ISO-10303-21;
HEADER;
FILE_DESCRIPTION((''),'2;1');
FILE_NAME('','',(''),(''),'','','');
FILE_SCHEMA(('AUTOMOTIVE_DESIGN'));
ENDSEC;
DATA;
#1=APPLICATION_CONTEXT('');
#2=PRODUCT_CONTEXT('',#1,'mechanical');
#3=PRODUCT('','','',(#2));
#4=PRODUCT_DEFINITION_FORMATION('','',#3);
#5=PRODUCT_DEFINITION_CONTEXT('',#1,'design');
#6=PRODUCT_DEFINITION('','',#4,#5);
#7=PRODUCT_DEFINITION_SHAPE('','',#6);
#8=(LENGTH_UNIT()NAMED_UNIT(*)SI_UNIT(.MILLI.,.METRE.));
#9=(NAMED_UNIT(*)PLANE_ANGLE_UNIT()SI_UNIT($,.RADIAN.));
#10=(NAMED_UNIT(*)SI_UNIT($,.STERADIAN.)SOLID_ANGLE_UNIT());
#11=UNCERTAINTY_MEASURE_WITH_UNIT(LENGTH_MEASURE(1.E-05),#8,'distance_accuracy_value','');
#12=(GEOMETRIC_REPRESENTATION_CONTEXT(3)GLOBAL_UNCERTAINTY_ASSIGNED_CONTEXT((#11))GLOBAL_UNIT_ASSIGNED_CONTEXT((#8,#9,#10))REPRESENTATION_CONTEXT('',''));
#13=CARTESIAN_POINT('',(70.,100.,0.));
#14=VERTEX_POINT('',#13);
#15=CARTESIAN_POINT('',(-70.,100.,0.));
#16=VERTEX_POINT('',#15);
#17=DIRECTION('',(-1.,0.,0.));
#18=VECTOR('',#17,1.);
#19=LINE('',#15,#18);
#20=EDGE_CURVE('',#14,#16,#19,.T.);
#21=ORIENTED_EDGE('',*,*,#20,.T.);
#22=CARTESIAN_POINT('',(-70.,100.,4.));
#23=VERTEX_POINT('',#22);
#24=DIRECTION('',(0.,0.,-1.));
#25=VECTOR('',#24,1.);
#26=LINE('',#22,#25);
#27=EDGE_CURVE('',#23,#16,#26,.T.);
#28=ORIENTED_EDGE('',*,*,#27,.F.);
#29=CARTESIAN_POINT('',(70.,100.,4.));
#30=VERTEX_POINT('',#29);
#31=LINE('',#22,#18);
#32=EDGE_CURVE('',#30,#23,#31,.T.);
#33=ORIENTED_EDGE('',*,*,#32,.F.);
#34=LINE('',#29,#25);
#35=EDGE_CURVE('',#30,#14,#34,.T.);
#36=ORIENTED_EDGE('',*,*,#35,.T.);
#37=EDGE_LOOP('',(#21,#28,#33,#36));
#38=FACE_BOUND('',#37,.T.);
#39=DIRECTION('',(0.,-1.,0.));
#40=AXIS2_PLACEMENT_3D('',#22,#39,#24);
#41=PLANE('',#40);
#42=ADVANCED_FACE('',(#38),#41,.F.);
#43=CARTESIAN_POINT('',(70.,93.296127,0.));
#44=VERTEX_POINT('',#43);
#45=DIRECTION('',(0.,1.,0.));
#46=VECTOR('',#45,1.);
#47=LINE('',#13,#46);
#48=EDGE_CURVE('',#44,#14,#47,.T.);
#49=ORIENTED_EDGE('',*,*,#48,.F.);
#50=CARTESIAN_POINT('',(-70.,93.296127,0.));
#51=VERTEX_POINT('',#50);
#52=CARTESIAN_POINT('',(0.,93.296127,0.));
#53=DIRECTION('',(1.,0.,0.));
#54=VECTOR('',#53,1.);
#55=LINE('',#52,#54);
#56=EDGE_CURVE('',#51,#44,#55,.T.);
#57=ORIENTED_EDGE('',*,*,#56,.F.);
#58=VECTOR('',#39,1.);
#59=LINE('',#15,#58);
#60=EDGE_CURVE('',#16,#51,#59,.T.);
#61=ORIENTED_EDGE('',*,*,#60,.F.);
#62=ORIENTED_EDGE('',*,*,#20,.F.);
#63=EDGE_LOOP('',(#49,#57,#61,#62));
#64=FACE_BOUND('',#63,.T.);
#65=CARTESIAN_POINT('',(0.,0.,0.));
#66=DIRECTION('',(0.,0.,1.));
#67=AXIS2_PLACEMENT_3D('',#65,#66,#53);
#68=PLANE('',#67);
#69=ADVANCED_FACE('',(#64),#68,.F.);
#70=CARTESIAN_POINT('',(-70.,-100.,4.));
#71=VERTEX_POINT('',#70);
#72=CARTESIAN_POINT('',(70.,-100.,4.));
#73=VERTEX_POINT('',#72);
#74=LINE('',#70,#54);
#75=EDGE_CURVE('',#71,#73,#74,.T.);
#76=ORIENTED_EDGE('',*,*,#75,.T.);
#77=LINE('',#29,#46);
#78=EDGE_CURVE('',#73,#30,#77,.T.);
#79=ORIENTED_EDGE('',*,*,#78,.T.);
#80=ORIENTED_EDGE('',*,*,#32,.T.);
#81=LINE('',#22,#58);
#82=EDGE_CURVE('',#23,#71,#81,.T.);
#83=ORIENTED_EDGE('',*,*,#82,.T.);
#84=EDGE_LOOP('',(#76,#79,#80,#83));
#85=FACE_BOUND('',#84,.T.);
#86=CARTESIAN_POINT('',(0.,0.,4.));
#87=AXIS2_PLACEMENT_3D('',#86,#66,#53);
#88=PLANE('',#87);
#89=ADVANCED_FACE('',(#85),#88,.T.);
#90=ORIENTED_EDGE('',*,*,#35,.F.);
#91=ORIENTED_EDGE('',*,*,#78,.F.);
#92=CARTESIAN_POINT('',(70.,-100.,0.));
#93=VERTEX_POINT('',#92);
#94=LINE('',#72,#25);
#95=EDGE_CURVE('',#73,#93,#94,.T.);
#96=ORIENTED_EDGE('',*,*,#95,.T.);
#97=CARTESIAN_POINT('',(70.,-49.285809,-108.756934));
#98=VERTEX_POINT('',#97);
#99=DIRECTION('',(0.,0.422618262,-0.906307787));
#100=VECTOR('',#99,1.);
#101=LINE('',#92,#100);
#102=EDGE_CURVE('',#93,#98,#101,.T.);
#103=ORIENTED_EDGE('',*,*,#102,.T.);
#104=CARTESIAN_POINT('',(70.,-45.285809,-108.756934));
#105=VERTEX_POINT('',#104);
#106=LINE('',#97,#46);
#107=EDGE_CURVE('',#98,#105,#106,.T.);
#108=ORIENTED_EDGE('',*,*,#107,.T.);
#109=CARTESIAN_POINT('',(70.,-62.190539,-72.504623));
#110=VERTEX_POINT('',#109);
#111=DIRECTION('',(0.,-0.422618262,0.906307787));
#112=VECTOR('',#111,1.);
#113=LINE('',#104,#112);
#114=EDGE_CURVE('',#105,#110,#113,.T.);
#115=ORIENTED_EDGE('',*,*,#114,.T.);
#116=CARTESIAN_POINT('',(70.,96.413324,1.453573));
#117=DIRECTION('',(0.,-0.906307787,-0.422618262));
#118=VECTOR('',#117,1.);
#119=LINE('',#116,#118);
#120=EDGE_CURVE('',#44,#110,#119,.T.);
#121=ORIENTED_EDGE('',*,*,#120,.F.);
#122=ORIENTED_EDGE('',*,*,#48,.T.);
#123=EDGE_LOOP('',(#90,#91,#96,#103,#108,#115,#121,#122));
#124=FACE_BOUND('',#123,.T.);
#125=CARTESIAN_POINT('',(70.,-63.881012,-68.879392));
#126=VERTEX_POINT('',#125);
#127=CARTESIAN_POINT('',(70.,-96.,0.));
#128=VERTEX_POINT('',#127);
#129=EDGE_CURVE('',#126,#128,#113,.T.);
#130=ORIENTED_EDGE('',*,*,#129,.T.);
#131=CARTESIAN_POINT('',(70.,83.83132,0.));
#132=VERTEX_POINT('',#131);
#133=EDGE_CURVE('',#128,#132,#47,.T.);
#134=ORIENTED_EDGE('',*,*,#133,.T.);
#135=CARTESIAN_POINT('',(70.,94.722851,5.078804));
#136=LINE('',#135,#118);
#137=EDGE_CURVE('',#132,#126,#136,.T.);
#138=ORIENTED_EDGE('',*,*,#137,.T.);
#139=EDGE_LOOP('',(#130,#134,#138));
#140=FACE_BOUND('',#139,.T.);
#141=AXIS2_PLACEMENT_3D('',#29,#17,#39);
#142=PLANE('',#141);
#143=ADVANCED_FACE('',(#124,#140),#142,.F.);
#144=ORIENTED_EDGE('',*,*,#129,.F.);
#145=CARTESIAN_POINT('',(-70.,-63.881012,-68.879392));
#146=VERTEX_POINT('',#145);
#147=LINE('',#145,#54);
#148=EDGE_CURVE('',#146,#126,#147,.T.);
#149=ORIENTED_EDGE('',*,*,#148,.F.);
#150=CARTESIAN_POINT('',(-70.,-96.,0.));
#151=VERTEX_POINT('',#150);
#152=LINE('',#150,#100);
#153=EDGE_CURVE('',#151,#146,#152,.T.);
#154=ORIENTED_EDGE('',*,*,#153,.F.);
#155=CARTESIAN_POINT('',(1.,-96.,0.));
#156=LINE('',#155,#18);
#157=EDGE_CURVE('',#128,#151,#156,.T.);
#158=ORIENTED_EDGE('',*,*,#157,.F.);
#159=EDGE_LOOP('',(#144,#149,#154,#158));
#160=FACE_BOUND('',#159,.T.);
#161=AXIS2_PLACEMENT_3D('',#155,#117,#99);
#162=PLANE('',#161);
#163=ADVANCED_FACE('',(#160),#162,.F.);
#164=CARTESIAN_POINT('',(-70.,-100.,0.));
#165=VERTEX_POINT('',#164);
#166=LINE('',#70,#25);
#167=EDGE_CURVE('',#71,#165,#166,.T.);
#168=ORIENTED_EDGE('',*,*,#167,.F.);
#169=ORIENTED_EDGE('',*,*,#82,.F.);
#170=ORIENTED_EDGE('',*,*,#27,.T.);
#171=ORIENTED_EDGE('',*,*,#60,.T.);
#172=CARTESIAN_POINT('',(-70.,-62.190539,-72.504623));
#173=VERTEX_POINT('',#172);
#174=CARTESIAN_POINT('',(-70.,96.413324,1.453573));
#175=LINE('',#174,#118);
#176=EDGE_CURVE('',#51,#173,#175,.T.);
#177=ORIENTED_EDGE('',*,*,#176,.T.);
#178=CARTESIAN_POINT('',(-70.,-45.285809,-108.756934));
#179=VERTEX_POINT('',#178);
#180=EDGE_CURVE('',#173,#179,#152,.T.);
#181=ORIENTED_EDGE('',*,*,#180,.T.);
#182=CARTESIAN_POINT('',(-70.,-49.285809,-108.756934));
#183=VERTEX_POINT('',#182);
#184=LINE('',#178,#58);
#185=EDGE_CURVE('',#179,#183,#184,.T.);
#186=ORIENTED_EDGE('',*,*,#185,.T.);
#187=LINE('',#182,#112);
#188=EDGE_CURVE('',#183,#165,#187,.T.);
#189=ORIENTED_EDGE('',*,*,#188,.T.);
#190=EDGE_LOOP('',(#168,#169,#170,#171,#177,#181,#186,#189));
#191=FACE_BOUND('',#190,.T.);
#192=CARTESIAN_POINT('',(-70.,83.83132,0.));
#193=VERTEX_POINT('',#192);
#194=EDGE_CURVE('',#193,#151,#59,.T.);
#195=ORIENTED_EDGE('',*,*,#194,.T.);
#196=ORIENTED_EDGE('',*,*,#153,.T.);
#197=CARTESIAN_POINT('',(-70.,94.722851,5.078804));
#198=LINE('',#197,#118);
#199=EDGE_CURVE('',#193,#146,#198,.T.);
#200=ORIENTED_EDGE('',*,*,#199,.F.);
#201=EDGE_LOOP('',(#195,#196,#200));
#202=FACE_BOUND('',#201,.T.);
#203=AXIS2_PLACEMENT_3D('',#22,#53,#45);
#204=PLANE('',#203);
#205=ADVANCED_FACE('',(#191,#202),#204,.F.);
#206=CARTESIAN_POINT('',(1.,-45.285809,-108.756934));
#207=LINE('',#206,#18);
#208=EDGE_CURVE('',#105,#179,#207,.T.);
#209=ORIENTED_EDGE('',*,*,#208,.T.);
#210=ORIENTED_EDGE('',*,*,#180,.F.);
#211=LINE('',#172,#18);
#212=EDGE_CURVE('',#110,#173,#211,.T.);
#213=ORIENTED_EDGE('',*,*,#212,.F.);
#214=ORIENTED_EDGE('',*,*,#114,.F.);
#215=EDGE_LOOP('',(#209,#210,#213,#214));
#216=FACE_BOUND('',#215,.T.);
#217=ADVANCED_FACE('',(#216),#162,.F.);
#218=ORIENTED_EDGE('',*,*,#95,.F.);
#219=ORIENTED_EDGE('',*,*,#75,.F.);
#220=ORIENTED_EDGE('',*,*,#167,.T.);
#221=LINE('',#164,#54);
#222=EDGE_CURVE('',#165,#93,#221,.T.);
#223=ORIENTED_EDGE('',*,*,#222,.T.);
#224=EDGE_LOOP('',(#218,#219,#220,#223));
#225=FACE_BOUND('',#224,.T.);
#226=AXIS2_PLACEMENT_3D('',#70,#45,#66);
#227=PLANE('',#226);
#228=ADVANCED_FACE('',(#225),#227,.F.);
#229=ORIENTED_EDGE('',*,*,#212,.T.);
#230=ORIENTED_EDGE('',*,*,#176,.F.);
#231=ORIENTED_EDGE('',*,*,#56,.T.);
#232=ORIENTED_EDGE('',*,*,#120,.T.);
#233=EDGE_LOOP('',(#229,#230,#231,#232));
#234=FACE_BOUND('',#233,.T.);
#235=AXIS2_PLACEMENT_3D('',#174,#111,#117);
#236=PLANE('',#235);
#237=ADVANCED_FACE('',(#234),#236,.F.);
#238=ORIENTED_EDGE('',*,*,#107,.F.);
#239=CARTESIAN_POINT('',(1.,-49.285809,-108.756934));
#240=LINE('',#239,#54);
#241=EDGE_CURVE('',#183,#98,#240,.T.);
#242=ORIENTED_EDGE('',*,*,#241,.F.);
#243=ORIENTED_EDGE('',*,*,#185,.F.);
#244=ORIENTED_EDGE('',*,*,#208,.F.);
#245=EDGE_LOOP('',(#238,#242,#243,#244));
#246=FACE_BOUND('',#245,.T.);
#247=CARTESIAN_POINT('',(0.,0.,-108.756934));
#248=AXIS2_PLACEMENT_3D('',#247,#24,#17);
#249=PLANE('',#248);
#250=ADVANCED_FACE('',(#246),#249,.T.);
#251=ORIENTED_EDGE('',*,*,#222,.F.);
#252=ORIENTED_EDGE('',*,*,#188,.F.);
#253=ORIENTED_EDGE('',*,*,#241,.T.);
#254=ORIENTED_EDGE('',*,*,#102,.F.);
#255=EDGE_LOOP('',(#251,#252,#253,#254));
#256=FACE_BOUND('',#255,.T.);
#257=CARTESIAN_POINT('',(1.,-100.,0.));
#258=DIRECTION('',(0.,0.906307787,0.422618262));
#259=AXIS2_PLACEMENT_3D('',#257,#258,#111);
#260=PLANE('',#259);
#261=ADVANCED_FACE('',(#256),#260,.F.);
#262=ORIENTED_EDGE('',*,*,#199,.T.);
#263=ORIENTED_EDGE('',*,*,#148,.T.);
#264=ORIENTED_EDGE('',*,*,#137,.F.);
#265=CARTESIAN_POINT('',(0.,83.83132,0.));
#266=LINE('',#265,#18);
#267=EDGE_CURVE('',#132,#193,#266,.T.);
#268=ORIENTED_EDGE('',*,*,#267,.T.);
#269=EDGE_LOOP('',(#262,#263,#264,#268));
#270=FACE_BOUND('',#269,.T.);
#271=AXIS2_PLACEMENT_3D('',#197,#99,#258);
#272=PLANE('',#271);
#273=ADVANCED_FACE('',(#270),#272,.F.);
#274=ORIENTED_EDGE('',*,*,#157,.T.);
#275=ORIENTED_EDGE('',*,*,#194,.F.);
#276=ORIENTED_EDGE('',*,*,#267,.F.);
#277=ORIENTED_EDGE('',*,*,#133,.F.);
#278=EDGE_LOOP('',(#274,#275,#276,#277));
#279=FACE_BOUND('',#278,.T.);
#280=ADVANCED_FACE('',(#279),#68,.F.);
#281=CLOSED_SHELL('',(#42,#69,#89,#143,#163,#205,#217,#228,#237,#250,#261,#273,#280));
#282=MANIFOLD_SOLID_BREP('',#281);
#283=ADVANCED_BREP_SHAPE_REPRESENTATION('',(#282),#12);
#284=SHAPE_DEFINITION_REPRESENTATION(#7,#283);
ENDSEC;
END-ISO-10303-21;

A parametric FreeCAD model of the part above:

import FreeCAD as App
import Part
import Sketcher
from FreeCAD import Vector
Q = App.Units.Quantity


def add_polygon(sketch, points):
    """Adds a closed chain of lines whose ends are joined by coincident constraints."""
    first, n = sketch.GeometryCount, len(points)
    for a, b in zip(points, points[1:] + points[:1]):
        sketch.addGeometry(Part.LineSegment(App.Vector(*a, 0), App.Vector(*b, 0)), False)
    for i in range(n):
        sketch.addConstraint(Sketcher.Constraint("Coincident", first + i, 2, first + (i + 1) % n, 1))

doc = App.newDocument("Part")
params = doc.addObject("Spreadsheet::Sheet", "Params")
for row, (alias, value) in enumerate([
    ("sketch1_width", "140 mm"),
    ("sketch1_height", "200 mm"),
    ("pad1_length", "4 mm"),
    ("sketch2_width", "2 mm"),
    ("sketch2_height", "4 mm"),
    ("sketch3_width", "120 mm"),
    ("sketch4_width", "4 mm"),
    ("sketch4_length", "120 mm"),
    ("pad2_length", "69 mm"),
    ("sketch5_width", "4 mm"),
    ("sketch5_length", "120 mm"),
    ("pad3_length", "69 mm"),
    ("sketch6_width", "140 mm"),
    ("sketch6_height", "4 mm"),
    ("pad4_length", "175 mm"),
    ("sketch7_width", "140 mm"),
    ("sketch7_height", "6 mm"),
    ("pad5_length", "10 mm"),
    ("sketch8_width", "140 mm"),
    ("sketch8_height", "6 mm"),
    ("pocket1_length", "10 mm"),
], start=1):
    params.set(f"A{row}", alias)
    params.set(f"B{row}", "=" + value)
    params.setAlias(f"B{row}", alias)

body = doc.addObject("PartDesign::Body", "Body")

sketch1 = body.newObject("Sketcher::SketchObject", "Sketch")
sketch1.AttachmentSupport = (doc.getObject("XY_Plane"), [""])
sketch1.MapMode = "FlatFace"
add_polygon(sketch1, [(-70, 100), (-70, -100), (70, -100), (70, 100)])
sketch1.addConstraint([
    Sketcher.Constraint("Vertical", 0),
    Sketcher.Constraint("Horizontal", 1),
    Sketcher.Constraint("Vertical", 2),
    Sketcher.Constraint("Horizontal", 3),
    Sketcher.Constraint("Symmetric", 0, 2, 2, 2, -1, 1),
    Sketcher.Constraint("DistanceX", 1, 1, 1, 2, 140.0),
    Sketcher.Constraint("DistanceY", 0, 2, 0, 1, 200.0),
])
sketch1.setExpression("Constraints[9]", "Params.sketch1_width")
sketch1.setExpression("Constraints[10]", "Params.sketch1_height")
pad1 = body.newObject("PartDesign::Pad", "Pad")
pad1.Profile = sketch1
pad1.setExpression("Length", "Params.pad1_length")

sketch2 = body.newObject("Sketcher::SketchObject", "Sketch001")
sketch2.AttachmentSupport = (doc.getObject("XY_Plane"), [""])
sketch2.MapMode = "FlatFace"
sketch2.AttachmentOffset = App.Placement(Vector(0, 0, -108.756934), App.Rotation())
add_polygon(sketch2, [(-1, -45.3), (-1, -49.3), (1, -49.3), (1, -45.3)])
sketch2.addConstraint([
    Sketcher.Constraint("Vertical", 0),
    Sketcher.Constraint("Horizontal", 1),
    Sketcher.Constraint("Vertical", 2),
    Sketcher.Constraint("Horizontal", 3),
    Sketcher.Constraint("DistanceX", 1, 1, 1, 2, 2.0),
    Sketcher.Constraint("DistanceY", 0, 2, 0, 1, 4.0),
    Sketcher.Constraint("DistanceX", 0, 2, -1, 1, 1.0),
    Sketcher.Constraint("DistanceY", 0, 2, -1, 1, 49.285809),
])
sketch2.setExpression("Constraints[8]", "Params.sketch2_width")
sketch2.setExpression("Constraints[9]", "Params.sketch2_height")

sketch3 = body.newObject("Sketcher::SketchObject", "Sketch002")
sketch3.Placement = App.Placement(Vector(0, -80.496593, -37.536178), App.Rotation(Vector(0, -0.422618262, 0.906307787), Vector(1, 0, 0), Vector(0, 0.906307787, 0.422618262), "ZXY"))
sketch3.addGeometry(Part.LineSegment(Vector(41, 0, 0), Vector(-79, 0, 0)), False)
sketch3.addConstraint([
    Sketcher.Constraint("Horizontal", 0),
    Sketcher.Constraint("PointOnObject", 0, 1, -1),
    Sketcher.Constraint("DistanceX", 0, 2, 0, 1, 120.0),
    Sketcher.Constraint("DistanceX", -1, 1, 0, 1, 41.41659),
])
sketch3.setExpression("Constraints[2]", "Params.sketch3_width")
doc.recompute()

additivepipe = body.newObject("PartDesign::AdditivePipe", "AdditivePipe")
additivepipe.Profile = sketch2
additivepipe.Spine = (sketch3, ["Edge1"])

sketch4 = body.newObject("Sketcher::SketchObject", "Sketch003")
sketch4.AttachmentSupport = (doc.getObject("YZ_Plane"), [""])
sketch4.MapMode = "FlatFace"
sketch4.AttachmentOffset = App.Placement(Vector(0, 0, 1), App.Rotation())
add_polygon(sketch4, [(-45.3, -108.8), (-96, 0), (-100, 0), (-49.3, -108.8)])
sketch4.addConstraint([
    Sketcher.Constraint("Horizontal", 1),
    Sketcher.Constraint("Horizontal", 3),
    Sketcher.Constraint("PointOnObject", 0, 2, -1),
    Sketcher.Constraint("Parallel", 0, 2),
    Sketcher.Constraint("DistanceX", 1, 2, 1, 1, 4.0),
    Sketcher.Constraint("Angle", 0, Q("115 deg")),
    Sketcher.Constraint("Distance", 0, 120.0),
    Sketcher.Constraint("DistanceX", 0, 2, -1, 1, 96.0),
])
sketch4.setExpression("Constraints[8]", "Params.sketch4_width")
sketch4.setExpression("Constraints[10]", "Params.sketch4_length")
pad2 = body.newObject("PartDesign::Pad", "Pad001")
pad2.Profile = sketch4
pad2.setExpression("Length", "Params.pad2_length")

sketch5 = body.newObject("Sketcher::SketchObject", "Sketch004")
sketch5.AttachmentSupport = (doc.getObject("YZ_Plane"), [""])
sketch5.MapMode = "FlatFace"
sketch5.AttachmentOffset = App.Placement(Vector(0, 0, -1), App.Rotation())
add_polygon(sketch5, [(-49.3, -108.8), (-100, 0), (-96, 0), (-45.3, -108.8)])
sketch5.addConstraint([
    Sketcher.Constraint("Horizontal", 1),
    Sketcher.Constraint("Horizontal", 3),
    Sketcher.Constraint("PointOnObject", 0, 2, -1),
    Sketcher.Constraint("Parallel", 0, 2),
    Sketcher.Constraint("DistanceX", 1, 1, 1, 2, 4.0),
    Sketcher.Constraint("Angle", 0, Q("115 deg")),
    Sketcher.Constraint("Distance", 0, 120.0),
    Sketcher.Constraint("DistanceX", 0, 2, -1, 1, 100.0),
])
sketch5.setExpression("Constraints[8]", "Params.sketch5_width")
sketch5.setExpression("Constraints[10]", "Params.sketch5_length")
pad3 = body.newObject("PartDesign::Pad", "Pad002")
pad3.Profile = sketch5
pad3.setExpression("Length", "Params.pad3_length")
pad3.Reversed = True

sketch6 = body.newObject("Sketcher::SketchObject", "Sketch005")
sketch6.Placement = App.Placement(Vector(0, -78.853805, -36.770133), App.Rotation(Vector(1, 0, 0), Vector(0, 0.422618262, -0.906307787), Vector(0, 0.906307787, 0.422618262), "ZXY"))
add_polygon(sketch6, [(-70, 39.4), (-70, 35.4), (70, 35.4), (70, 39.4)])
sketch6.addConstraint([
    Sketcher.Constraint("Vertical", 0),
    Sketcher.Constraint("Horizontal", 1),
    Sketcher.Constraint("Vertical", 2),
    Sketcher.Constraint("Horizontal", 3),
    Sketcher.Constraint("DistanceX", 1, 1, 1, 2, 140.0),
    Sketcher.Constraint("DistanceY", 0, 2, 0, 1, 4.0),
    Sketcher.Constraint("DistanceX", 0, 2, -1, 1, 70.0),
    Sketcher.Constraint("DistanceY", -1, 1, 0, 2, 35.428647),
])
sketch6.setExpression("Constraints[8]", "Params.sketch6_width")
sketch6.setExpression("Constraints[9]", "Params.sketch6_height")
pad4 = body.newObject("PartDesign::Pad", "Pad003")
pad4.Profile = sketch6
pad4.setExpression("Length", "Params.pad4_length")

sketch7 = body.newObject("Sketcher::SketchObject", "Sketch006")
sketch7.AttachmentSupport = (doc.getObject("XY_Plane"), [""])
sketch7.MapMode = "FlatFace"
sketch7.AttachmentOffset = App.Placement(Vector(0, 0, 4), App.Rotation())
add_polygon(sketch7, [(-70, 96), (-70, 90), (70, 90), (70, 96)])
sketch7.addConstraint([
    Sketcher.Constraint("Vertical", 0),
    Sketcher.Constraint("Horizontal", 1),
    Sketcher.Constraint("Vertical", 2),
    Sketcher.Constraint("Horizontal", 3),
    Sketcher.Constraint("DistanceX", 1, 1, 1, 2, 140.0),
    Sketcher.Constraint("DistanceY", 0, 2, 0, 1, 6.0),
    Sketcher.Constraint("DistanceX", 0, 2, -1, 1, 70.0),
    Sketcher.Constraint("DistanceY", -1, 1, 0, 2, 90.234832),
])
sketch7.setExpression("Constraints[8]", "Params.sketch7_width")
sketch7.setExpression("Constraints[9]", "Params.sketch7_height")
pad5 = body.newObject("PartDesign::Pad", "Pad004")
pad5.Profile = sketch7
pad5.setExpression("Length", "Params.pad5_length")

sketch8 = body.newObject("Sketcher::SketchObject", "Sketch007")
sketch8.AttachmentSupport = (doc.getObject("XY_Plane"), [""])
sketch8.MapMode = "FlatFace"
sketch8.AttachmentOffset = App.Placement(Vector(0, 0, 14), App.Rotation())
add_polygon(sketch8, [(-70, 96), (-70, 90), (70, 90), (70, 96)])
sketch8.addConstraint([
    Sketcher.Constraint("Vertical", 0),
    Sketcher.Constraint("Horizontal", 1),
    Sketcher.Constraint("Vertical", 2),
    Sketcher.Constraint("Horizontal", 3),
    Sketcher.Constraint("DistanceX", 1, 1, 1, 2, 140.0),
    Sketcher.Constraint("DistanceY", 0, 2, 0, 1, 6.0),
    Sketcher.Constraint("DistanceX", 0, 2, -1, 1, 70.0),
    Sketcher.Constraint("DistanceY", -1, 1, 0, 2, 90.234832),
])
sketch8.setExpression("Constraints[8]", "Params.sketch8_width")
sketch8.setExpression("Constraints[9]", "Params.sketch8_height")
pocket1 = body.newObject("PartDesign::Pocket", "Pocket")
pocket1.Profile = sketch8
pocket1.setExpression("Length", "Params.pocket1_length")

doc.recompute()
